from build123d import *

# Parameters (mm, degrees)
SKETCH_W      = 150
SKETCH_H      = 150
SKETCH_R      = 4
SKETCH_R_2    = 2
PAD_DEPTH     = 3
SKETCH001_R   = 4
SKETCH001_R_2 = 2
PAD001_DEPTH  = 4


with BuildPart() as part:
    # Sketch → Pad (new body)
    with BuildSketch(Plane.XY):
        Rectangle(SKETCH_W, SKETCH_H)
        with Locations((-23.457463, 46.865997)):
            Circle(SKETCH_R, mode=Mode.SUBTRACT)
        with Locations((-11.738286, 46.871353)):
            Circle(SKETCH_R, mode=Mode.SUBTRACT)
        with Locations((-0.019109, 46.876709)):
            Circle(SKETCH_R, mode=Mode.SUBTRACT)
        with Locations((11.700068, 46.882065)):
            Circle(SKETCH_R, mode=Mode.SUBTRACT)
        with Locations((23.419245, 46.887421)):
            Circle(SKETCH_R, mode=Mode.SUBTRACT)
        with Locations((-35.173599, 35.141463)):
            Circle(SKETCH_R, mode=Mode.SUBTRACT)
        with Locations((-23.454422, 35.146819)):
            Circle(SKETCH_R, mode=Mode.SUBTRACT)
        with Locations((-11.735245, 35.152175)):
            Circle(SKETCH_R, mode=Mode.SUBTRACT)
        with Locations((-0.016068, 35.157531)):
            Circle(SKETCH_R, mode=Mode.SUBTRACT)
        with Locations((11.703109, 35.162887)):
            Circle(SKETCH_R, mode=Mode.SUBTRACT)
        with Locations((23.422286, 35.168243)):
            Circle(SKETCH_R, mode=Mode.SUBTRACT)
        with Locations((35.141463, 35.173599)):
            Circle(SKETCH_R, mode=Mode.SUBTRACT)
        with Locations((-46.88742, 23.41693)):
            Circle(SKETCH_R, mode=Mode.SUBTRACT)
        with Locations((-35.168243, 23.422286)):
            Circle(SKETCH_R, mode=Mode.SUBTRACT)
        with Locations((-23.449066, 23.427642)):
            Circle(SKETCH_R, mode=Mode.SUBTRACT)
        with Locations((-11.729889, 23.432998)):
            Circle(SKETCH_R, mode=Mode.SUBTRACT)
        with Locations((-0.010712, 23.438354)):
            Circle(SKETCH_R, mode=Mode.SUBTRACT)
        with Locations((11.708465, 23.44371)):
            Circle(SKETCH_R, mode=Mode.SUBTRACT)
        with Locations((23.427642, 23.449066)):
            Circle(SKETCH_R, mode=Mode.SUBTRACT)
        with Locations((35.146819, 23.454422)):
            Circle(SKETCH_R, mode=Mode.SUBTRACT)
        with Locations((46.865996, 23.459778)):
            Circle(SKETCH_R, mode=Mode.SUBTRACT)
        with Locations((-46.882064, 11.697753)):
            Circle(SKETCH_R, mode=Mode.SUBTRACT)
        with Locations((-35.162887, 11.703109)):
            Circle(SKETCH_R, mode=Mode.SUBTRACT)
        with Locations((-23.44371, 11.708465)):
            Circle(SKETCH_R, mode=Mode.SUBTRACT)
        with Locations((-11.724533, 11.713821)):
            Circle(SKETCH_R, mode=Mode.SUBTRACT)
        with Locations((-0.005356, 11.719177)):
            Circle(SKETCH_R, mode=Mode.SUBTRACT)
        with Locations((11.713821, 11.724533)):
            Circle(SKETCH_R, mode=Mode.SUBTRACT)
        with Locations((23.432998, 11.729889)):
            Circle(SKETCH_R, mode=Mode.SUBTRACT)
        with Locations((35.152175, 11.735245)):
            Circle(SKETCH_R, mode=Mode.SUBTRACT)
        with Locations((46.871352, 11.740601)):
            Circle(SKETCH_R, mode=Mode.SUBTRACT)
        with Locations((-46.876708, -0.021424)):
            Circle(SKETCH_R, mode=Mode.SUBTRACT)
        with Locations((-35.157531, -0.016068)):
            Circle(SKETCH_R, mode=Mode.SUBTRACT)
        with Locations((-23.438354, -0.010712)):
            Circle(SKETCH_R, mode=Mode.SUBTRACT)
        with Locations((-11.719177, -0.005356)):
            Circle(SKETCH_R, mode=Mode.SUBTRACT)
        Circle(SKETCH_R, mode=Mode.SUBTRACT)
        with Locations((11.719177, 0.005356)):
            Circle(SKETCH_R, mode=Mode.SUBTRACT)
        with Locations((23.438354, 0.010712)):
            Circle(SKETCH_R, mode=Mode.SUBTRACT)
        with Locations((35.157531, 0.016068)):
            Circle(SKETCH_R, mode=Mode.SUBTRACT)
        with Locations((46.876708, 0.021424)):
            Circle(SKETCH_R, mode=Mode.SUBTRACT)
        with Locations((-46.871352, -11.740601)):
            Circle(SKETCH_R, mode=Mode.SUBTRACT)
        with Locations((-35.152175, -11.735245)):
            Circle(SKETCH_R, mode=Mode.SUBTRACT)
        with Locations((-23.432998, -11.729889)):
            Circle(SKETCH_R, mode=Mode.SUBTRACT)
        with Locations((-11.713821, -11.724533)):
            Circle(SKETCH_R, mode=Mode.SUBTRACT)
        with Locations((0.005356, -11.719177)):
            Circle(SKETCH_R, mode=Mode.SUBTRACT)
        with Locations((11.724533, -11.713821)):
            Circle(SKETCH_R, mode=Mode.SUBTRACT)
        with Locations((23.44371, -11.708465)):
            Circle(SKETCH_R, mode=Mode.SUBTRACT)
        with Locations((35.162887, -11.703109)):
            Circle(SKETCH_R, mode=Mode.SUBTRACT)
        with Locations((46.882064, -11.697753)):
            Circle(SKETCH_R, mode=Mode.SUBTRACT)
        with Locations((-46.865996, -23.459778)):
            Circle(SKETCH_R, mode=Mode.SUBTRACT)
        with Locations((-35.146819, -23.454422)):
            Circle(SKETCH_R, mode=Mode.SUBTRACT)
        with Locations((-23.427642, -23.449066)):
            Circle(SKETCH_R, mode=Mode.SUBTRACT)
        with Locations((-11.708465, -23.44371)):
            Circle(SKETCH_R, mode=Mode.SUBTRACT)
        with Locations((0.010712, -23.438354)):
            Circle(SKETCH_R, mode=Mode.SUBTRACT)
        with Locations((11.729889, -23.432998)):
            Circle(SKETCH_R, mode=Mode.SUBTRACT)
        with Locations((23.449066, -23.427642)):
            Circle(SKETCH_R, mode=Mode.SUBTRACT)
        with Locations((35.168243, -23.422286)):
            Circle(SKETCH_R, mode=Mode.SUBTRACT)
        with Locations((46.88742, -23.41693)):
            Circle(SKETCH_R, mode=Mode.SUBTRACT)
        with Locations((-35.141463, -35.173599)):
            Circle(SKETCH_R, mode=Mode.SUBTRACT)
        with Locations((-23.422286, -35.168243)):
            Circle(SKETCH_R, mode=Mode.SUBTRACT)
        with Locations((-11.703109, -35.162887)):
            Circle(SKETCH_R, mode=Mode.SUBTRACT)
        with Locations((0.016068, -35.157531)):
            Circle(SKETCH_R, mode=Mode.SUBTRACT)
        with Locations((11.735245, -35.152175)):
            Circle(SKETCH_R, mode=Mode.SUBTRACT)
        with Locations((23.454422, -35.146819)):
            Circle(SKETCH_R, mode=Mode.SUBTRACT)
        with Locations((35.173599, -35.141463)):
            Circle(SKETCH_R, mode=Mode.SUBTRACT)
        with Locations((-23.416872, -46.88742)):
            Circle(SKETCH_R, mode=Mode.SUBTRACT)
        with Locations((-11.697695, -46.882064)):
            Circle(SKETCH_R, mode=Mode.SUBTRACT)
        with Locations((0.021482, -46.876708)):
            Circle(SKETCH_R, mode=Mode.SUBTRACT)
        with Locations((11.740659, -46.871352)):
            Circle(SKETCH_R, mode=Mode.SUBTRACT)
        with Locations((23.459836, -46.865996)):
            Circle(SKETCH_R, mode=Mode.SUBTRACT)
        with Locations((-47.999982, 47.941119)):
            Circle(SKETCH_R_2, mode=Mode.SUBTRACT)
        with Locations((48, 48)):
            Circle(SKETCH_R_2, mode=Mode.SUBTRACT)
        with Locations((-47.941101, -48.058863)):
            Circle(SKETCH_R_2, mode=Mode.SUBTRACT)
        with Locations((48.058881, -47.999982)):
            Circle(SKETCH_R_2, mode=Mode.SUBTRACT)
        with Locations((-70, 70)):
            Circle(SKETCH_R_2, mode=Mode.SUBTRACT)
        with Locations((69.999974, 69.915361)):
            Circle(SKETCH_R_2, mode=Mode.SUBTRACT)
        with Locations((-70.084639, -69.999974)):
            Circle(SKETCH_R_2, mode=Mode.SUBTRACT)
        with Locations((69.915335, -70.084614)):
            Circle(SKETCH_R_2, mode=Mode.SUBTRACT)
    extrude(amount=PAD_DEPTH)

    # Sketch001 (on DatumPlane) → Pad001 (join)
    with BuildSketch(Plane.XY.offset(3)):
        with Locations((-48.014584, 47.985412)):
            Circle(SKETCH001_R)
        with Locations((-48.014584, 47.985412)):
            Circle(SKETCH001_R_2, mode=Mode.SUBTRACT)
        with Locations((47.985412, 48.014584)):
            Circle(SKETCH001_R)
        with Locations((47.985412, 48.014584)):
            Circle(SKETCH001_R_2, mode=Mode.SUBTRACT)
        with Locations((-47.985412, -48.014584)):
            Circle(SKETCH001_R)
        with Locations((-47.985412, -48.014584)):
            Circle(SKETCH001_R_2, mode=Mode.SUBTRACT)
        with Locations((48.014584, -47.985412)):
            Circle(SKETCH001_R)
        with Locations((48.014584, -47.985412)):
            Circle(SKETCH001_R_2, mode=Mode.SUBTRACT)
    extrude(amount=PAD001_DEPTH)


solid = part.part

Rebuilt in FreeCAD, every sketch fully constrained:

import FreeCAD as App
import Part
import Sketcher

V = App.Vector

doc = App.newDocument("Part")
params = doc.addObject("Spreadsheet::Sheet", "Params")
for row, (alias, value) in enumerate([
    ("sketch1_diameter", "4 mm"),
    ("sketch1_diameter2", "8 mm"),
    ("sketch1_width", "150 mm"),
    ("pad1_length", "3 mm"),
    ("sketch2_diameter", "8 mm"),
    ("sketch2_diameter2", "4 mm"),
    ("pad2_length", "4 mm"),
], start=1):
    params.set(f"A{row}", alias)
    params.set(f"B{row}", "=" + value)
    params.setAlias(f"B{row}", alias)

body = doc.addObject("PartDesign::Body", "Body")

# Sketch on XY plane
sketch1 = doc.addObject("Sketcher::SketchObject", "Sketch")
body.addObject(sketch1)
sketch1.AttachmentSupport = (doc.XY_Plane, [""])
sketch1.MapMode = "FlatFace"
sketch1.addGeometry([
    Part.LineSegment(V(-75, 75, 0), V(-75, -75, 0)),  # 0
    Part.LineSegment(V(-75, -75, 0), V(75, -75, 0)),  # 1
    Part.LineSegment(V(75, -75, 0), V(75, 75, 0)),  # 2
    Part.LineSegment(V(75, 75, 0), V(-75, 75, 0)),  # 3
    Part.Circle(V(-70.084639, -69.999974, 0), V(0, 0, 1), 2),  # 4
    Part.Circle(V(-47.941101, -48.058863, 0), V(0, 0, 1), 2),  # 5
    Part.Circle(V(-23.416872, -46.88742, 0), V(0, 0, 1), 4),  # 6
    Part.Circle(V(-11.697695, -46.882064, 0), V(0, 0, 1), 4),  # 7
    Part.Circle(V(-46.865996, -23.459778, 0), V(0, 0, 1), 4),  # 8
    Part.Circle(V(-46.871352, -11.740601, 0), V(0, 0, 1), 4),  # 9
    Part.Circle(V(-35.141463, -35.173599, 0), V(0, 0, 1), 4),  # 10
    Part.Circle(V(-23.422286, -35.168243, 0), V(0, 0, 1), 4),  # 11
    Part.Circle(V(-35.146819, -23.454422, 0), V(0, 0, 1), 4),  # 12
    Part.Circle(V(-23.427642, -23.449066, 0), V(0, 0, 1), 4),  # 13
    Part.Circle(V(-11.703109, -35.162887, 0), V(0, 0, 1), 4),  # 14
    Part.Circle(V(-11.708465, -23.44371, 0), V(0, 0, 1), 4),  # 15
    Part.Circle(V(-35.152175, -11.735245, 0), V(0, 0, 1), 4),  # 16
    Part.Circle(V(-23.432998, -11.729889, 0), V(0, 0, 1), 4),  # 17
    Part.Circle(V(-11.713821, -11.724533, 0), V(0, 0, 1), 4),  # 18
    Part.Circle(V(0.021482, -46.876708, 0), V(0, 0, 1), 4),  # 19
    Part.Circle(V(11.740659, -46.871352, 0), V(0, 0, 1), 4),  # 20
    Part.Circle(V(23.459836, -46.865996, 0), V(0, 0, 1), 4),  # 21
    Part.Circle(V(69.915335, -70.084614, 0), V(0, 0, 1), 2),  # 22
    Part.Circle(V(48.058881, -47.999982, 0), V(0, 0, 1), 2),  # 23
    Part.Circle(V(0.016068, -35.157531, 0), V(0, 0, 1), 4),  # 24
    Part.Circle(V(11.735245, -35.152175, 0), V(0, 0, 1), 4),  # 25
    Part.Circle(V(0.010712, -23.438354, 0), V(0, 0, 1), 4),  # 26
    Part.Circle(V(11.729889, -23.432998, 0), V(0, 0, 1), 4),  # 27
    Part.Circle(V(23.454422, -35.146819, 0), V(0, 0, 1), 4),  # 28
    Part.Circle(V(35.173599, -35.141463, 0), V(0, 0, 1), 4),  # 29
    Part.Circle(V(23.449066, -23.427642, 0), V(0, 0, 1), 4),  # 30
    Part.Circle(V(35.168243, -23.422286, 0), V(0, 0, 1), 4),  # 31
    Part.Circle(V(0.005356, -11.719177, 0), V(0, 0, 1), 4),  # 32
    Part.Circle(V(11.724533, -11.713821, 0), V(0, 0, 1), 4),  # 33
    Part.Circle(V(23.44371, -11.708465, 0), V(0, 0, 1), 4),  # 34
    Part.Circle(V(35.162887, -11.703109, 0), V(0, 0, 1), 4),  # 35
    Part.Circle(V(46.88742, -23.41693, 0), V(0, 0, 1), 4),  # 36
    Part.Circle(V(46.882064, -11.697753, 0), V(0, 0, 1), 4),  # 37
    Part.Circle(V(-46.876708, -0.021424, 0), V(0, 0, 1), 4),  # 38
    Part.Circle(V(-46.882064, 11.697753, 0), V(0, 0, 1), 4),  # 39
    Part.Circle(V(-46.88742, 23.41693, 0), V(0, 0, 1), 4),  # 40
    Part.Circle(V(-35.157531, -0.016068, 0), V(0, 0, 1), 4),  # 41
    Part.Circle(V(-23.438354, -0.010712, 0), V(0, 0, 1), 4),  # 42
    Part.Circle(V(-35.162887, 11.703109, 0), V(0, 0, 1), 4),  # 43
    Part.Circle(V(-23.44371, 11.708465, 0), V(0, 0, 1), 4),  # 44
    Part.Circle(V(-11.719177, -0.005356, 0), V(0, 0, 1), 4),  # 45
    Part.Circle(V(-11.724533, 11.713821, 0), V(0, 0, 1), 4),  # 46
    Part.Circle(V(-35.168243, 23.422286, 0), V(0, 0, 1), 4),  # 47
    Part.Circle(V(-23.449066, 23.427642, 0), V(0, 0, 1), 4),  # 48
    Part.Circle(V(-35.173599, 35.141463, 0), V(0, 0, 1), 4),  # 49
    Part.Circle(V(-23.454422, 35.146819, 0), V(0, 0, 1), 4),  # 50
    Part.Circle(V(-11.729889, 23.432998, 0), V(0, 0, 1), 4),  # 51
    Part.Circle(V(-11.735245, 35.152175, 0), V(0, 0, 1), 4),  # 52
    Part.Circle(V(-47.999982, 47.941119, 0), V(0, 0, 1), 2),  # 53
    Part.Circle(V(-70, 70, 0), V(0, 0, 1), 2),  # 54
    Part.Circle(V(-23.457463, 46.865997, 0), V(0, 0, 1), 4),  # 55
    Part.Circle(V(-11.738286, 46.871353, 0), V(0, 0, 1), 4),  # 56
    Part.Circle(V(0, 0, 0), V(0, 0, 1), 4),  # 57
    Part.Circle(V(11.719177, 0.005356, 0), V(0, 0, 1), 4),  # 58
    Part.Circle(V(-0.005356, 11.719177, 0), V(0, 0, 1), 4),  # 59
    Part.Circle(V(11.713821, 11.724533, 0), V(0, 0, 1), 4),  # 60
    Part.Circle(V(23.438354, 0.010712, 0), V(0, 0, 1), 4),  # 61
    Part.Circle(V(35.157531, 0.016068, 0), V(0, 0, 1), 4),  # 62
    Part.Circle(V(23.432998, 11.729889, 0), V(0, 0, 1), 4),  # 63
    Part.Circle(V(35.152175, 11.735245, 0), V(0, 0, 1), 4),  # 64
    Part.Circle(V(-0.010712, 23.438354, 0), V(0, 0, 1), 4),  # 65
    Part.Circle(V(11.708465, 23.44371, 0), V(0, 0, 1), 4),  # 66
    Part.Circle(V(-0.016068, 35.157531, 0), V(0, 0, 1), 4),  # 67
    Part.Circle(V(11.703109, 35.162887, 0), V(0, 0, 1), 4),  # 68
    Part.Circle(V(23.427642, 23.449066, 0), V(0, 0, 1), 4),  # 69
    Part.Circle(V(35.146819, 23.454422, 0), V(0, 0, 1), 4),  # 70
    Part.Circle(V(23.422286, 35.168243, 0), V(0, 0, 1), 4),  # 71
    Part.Circle(V(35.141463, 35.173599, 0), V(0, 0, 1), 4),  # 72
    Part.Circle(V(46.876708, 0.021424, 0), V(0, 0, 1), 4),  # 73
    Part.Circle(V(46.871352, 11.740601, 0), V(0, 0, 1), 4),  # 74
    Part.Circle(V(46.865996, 23.459778, 0), V(0, 0, 1), 4),  # 75
    Part.Circle(V(-0.019109, 46.876709, 0), V(0, 0, 1), 4),  # 76
    Part.Circle(V(11.700068, 46.882065, 0), V(0, 0, 1), 4),  # 77
    Part.Circle(V(23.419245, 46.887421, 0), V(0, 0, 1), 4),  # 78
    Part.Circle(V(48, 48, 0), V(0, 0, 1), 2),  # 79
    Part.Circle(V(69.999974, 69.915361, 0), V(0, 0, 1), 2),  # 80
], False)
sketch1.addConstraint([
    Sketcher.Constraint("Coincident", 0, 2, 1, 1),
    Sketcher.Constraint("Coincident", 1, 2, 2, 1),
    Sketcher.Constraint("Coincident", 2, 2, 3, 1),
    Sketcher.Constraint("Coincident", 3, 2, 0, 1),
    Sketcher.Constraint("Vertical", 0),
    Sketcher.Constraint("Horizontal", 1),
    Sketcher.Constraint("Vertical", 2),
    Sketcher.Constraint("Horizontal", 3),
    Sketcher.Constraint("Coincident", 57, 3, -1, 1),
    Sketcher.Constraint("Equal", 4, 5),
    Sketcher.Constraint("Equal", 6, 7),
    Sketcher.Constraint("Equal", 7, 8),
    Sketcher.Constraint("Equal", 8, 9),
    Sketcher.Constraint("Equal", 9, 10),
    Sketcher.Constraint("Equal", 10, 11),
    Sketcher.Constraint("Equal", 11, 12),
    Sketcher.Constraint("Equal", 12, 13),
    Sketcher.Constraint("Equal", 13, 14),
    Sketcher.Constraint("Equal", 14, 15),
    Sketcher.Constraint("Equal", 15, 16),
    Sketcher.Constraint("Equal", 16, 17),
    Sketcher.Constraint("Equal", 17, 18),
    Sketcher.Constraint("Equal", 18, 19),
    Sketcher.Constraint("Equal", 19, 20),
    Sketcher.Constraint("Equal", 20, 21),
    Sketcher.Constraint("Equal", 5, 22),
    Sketcher.Constraint("Equal", 22, 23),
    Sketcher.Constraint("Equal", 21, 24),
    Sketcher.Constraint("Equal", 24, 25),
    Sketcher.Constraint("Equal", 25, 26),
    Sketcher.Constraint("Equal", 26, 27),
    Sketcher.Constraint("Equal", 27, 28),
    Sketcher.Constraint("Equal", 28, 29),
    Sketcher.Constraint("Equal", 29, 30),
    Sketcher.Constraint("Equal", 30, 31),
    Sketcher.Constraint("Equal", 31, 32),
    Sketcher.Constraint("Equal", 32, 33),
    Sketcher.Constraint("Equal", 33, 34),
    Sketcher.Constraint("Equal", 34, 35),
    Sketcher.Constraint("Equal", 35, 36),
    Sketcher.Constraint("Equal", 36, 37),
    Sketcher.Constraint("Equal", 37, 38),
    Sketcher.Constraint("Equal", 38, 39),
    Sketcher.Constraint("Equal", 39, 40),
    Sketcher.Constraint("Equal", 40, 41),
    Sketcher.Constraint("Equal", 41, 42),
    Sketcher.Constraint("Equal", 42, 43),
    Sketcher.Constraint("Equal", 43, 44),
    Sketcher.Constraint("Equal", 44, 45),
    Sketcher.Constraint("Equal", 45, 46),
    Sketcher.Constraint("Equal", 46, 47),
    Sketcher.Constraint("Equal", 47, 48),
    Sketcher.Constraint("Equal", 48, 49),
    Sketcher.Constraint("Equal", 49, 50),
    Sketcher.Constraint("Equal", 50, 51),
    Sketcher.Constraint("Equal", 51, 52),
    Sketcher.Constraint("Equal", 23, 53),
    Sketcher.Constraint("Equal", 53, 54),
    Sketcher.Constraint("Equal", 52, 55),
    Sketcher.Constraint("Equal", 55, 56),
    Sketcher.Constraint("Equal", 56, 57),
    Sketcher.Constraint("Equal", 57, 58),
    Sketcher.Constraint("Equal", 58, 59),
    Sketcher.Constraint("Equal", 59, 60),
    Sketcher.Constraint("Equal", 60, 61),
    Sketcher.Constraint("Equal", 61, 62),
    Sketcher.Constraint("Equal", 62, 63),
    Sketcher.Constraint("Equal", 63, 64),
    Sketcher.Constraint("Equal", 64, 65),
    Sketcher.Constraint("Equal", 65, 66),
    Sketcher.Constraint("Equal", 66, 67),
    Sketcher.Constraint("Equal", 67, 68),
    Sketcher.Constraint("Equal", 68, 69),
    Sketcher.Constraint("Equal", 69, 70),
    Sketcher.Constraint("Equal", 70, 71),
    Sketcher.Constraint("Equal", 71, 72),
    Sketcher.Constraint("Equal", 72, 73),
    Sketcher.Constraint("Equal", 73, 74),
    Sketcher.Constraint("Equal", 74, 75),
    Sketcher.Constraint("Equal", 75, 76),
    Sketcher.Constraint("Equal", 76, 77),
    Sketcher.Constraint("Equal", 77, 78),
    Sketcher.Constraint("Equal", 54, 79),
    Sketcher.Constraint("Equal", 79, 80),
    Sketcher.Constraint("Symmetric", 37, 3, 39, 3, -1, 1),
    Sketcher.Constraint("Symmetric", 36, 3, 40, 3, -1, 1),
    Sketcher.Constraint("Symmetric", 35, 3, 43, 3, -1, 1),
    Sketcher.Constraint("Symmetric", 34, 3, 44, 3, -1, 1),
    Sketcher.Constraint("Symmetric", 33, 3, 46, 3, -1, 1),
    Sketcher.Constraint("Symmetric", 31, 3, 47, 3, -1, 1),
    Sketcher.Constraint("Symmetric", 30, 3, 48, 3, -1, 1),
    Sketcher.Constraint("Symmetric", 29, 3, 49, 3, -1, 1),
    Sketcher.Constraint("Symmetric", 28, 3, 50, 3, -1, 1),
    Sketcher.Constraint("Symmetric", 27, 3, 51, 3, -1, 1),
    Sketcher.Constraint("Symmetric", 25, 3, 52, 3, -1, 1),
    Sketcher.Constraint("Symmetric", 45, 3, 58, 3, -1, 1),
    Sketcher.Constraint("Symmetric", 32, 3, 59, 3, -1, 1),
    Sketcher.Constraint("Symmetric", 18, 3, 60, 3, -1, 1),
    Sketcher.Constraint("Symmetric", 42, 3, 61, 3, -1, 1),
    Sketcher.Constraint("Symmetric", 41, 3, 62, 3, -1, 1),
    Sketcher.Constraint("Symmetric", 17, 3, 63, 3, -1, 1),
    Sketcher.Constraint("Symmetric", 16, 3, 64, 3, -1, 1),
    Sketcher.Constraint("Symmetric", 26, 3, 65, 3, -1, 1),
    Sketcher.Constraint("Symmetric", 15, 3, 66, 3, -1, 1),
    Sketcher.Constraint("Symmetric", 24, 3, 67, 3, -1, 1),
    Sketcher.Constraint("Symmetric", 14, 3, 68, 3, -1, 1),
    Sketcher.Constraint("Symmetric", 13, 3, 69, 3, -1, 1),
    Sketcher.Constraint("Symmetric", 12, 3, 70, 3, -1, 1),
    Sketcher.Constraint("Symmetric", 11, 3, 71, 3, -1, 1),
    Sketcher.Constraint("Symmetric", 10, 3, 72, 3, -1, 1),
    Sketcher.Constraint("Symmetric", 38, 3, 73, 3, -1, 1),
    Sketcher.Constraint("Symmetric", 9, 3, 74, 3, -1, 1),
    Sketcher.Constraint("Symmetric", 8, 3, 75, 3, -1, 1),
    Sketcher.Constraint("Symmetric", 0, 2, 2, 2, -1, 1),
    Sketcher.Constraint("Equal", 3, 0),
    Sketcher.Constraint("Diameter", 4, 4.0),
    Sketcher.Constraint("Diameter", 6, 8.0),
    Sketcher.Constraint("DistanceX", 1, 1, 1, 2, 150.0),
    Sketcher.Constraint("DistanceX", 54, 3, -1, 1, 70.0),
    Sketcher.Constraint("DistanceY", -1, 1, 54, 3, 70.0),
    Sketcher.Constraint("DistanceX", -1, 1, 79, 3, 48.0),
    Sketcher.Constraint("DistanceY", -1, 1, 79, 3, 48.0),
    Sketcher.Constraint("DistanceX", 17, 3, -1, 1, 23.432998),
    Sketcher.Constraint("DistanceY", 27, 3, -1, 1, 23.432998),
    Sketcher.Constraint("DistanceX", 5, 3, -1, 1, 47.941101),
    Sketcher.Constraint("DistanceY", 9, 3, -1, 1, 11.740601),
    Sketcher.Constraint("DistanceY", 10, 3, -1, 1, 35.173599),
    Sketcher.Constraint("DistanceX", -1, 1, 29, 3, 35.173599),
    Sketcher.Constraint("DistanceX", 4, 3, -1, 1, 70.084639),
    Sketcher.Constraint("DistanceY", 6, 3, -1, 1, 46.88742),
    Sketcher.Constraint("DistanceY", 8, 3, -1, 1, 23.459778),
    Sketcher.Constraint("DistanceX", 12, 3, -1, 1, 35.146819),
    Sketcher.Constraint("DistanceX", 13, 3, -1, 1, 23.427642),
    Sketcher.Constraint("DistanceX", 14, 3, -1, 1, 11.703109),
    Sketcher.Constraint("DistanceY", 15, 3, -1, 1, 23.44371),
    Sketcher.Constraint("DistanceY", 17, 3, -1, 1, 11.729889),
    Sketcher.Constraint("DistanceX", 18, 3, -1, 1, 11.713821),
    Sketcher.Constraint("DistanceX", -1, 1, 20, 3, 11.740659),
    Sketcher.Constraint("DistanceX", -1, 1, 23, 3, 48.058881),
    Sketcher.Constraint("DistanceY", 24, 3, -1, 1, 35.157531),
    Sketcher.Constraint("DistanceX", -1, 1, 26, 3, 0.010712),
    Sketcher.Constraint("DistanceX", -1, 1, 27, 3, 11.729889),
    Sketcher.Constraint("DistanceY", 28, 3, -1, 1, 35.146819),
    Sketcher.Constraint("DistanceY", 30, 3, -1, 1, 23.427642),
    Sketcher.Constraint("DistanceY", 33, 3, -1, 1, 11.713821),
    Sketcher.Constraint("DistanceX", -1, 1, 34, 3, 23.44371),
    Sketcher.Constraint("DistanceY", 35, 3, -1, 1, 11.703109),
    Sketcher.Constraint("DistanceX", -1, 1, 36, 3, 46.88742),
    Sketcher.Constraint("DistanceY", 36, 3, -1, 1, 23.41693),
    Sketcher.Constraint("DistanceX", 41, 3, -1, 1, 35.157531),
    Sketcher.Constraint("DistanceY", 42, 3, -1, 1, 0.010712),
    Sketcher.Constraint("DistanceY", -1, 1, 53, 3, 47.941119),
    Sketcher.Constraint("DistanceX", 76, 3, -1, 1, 0.019109),
    Sketcher.Constraint("DistanceY", -1, 1, 76, 3, 46.876709),
    Sketcher.Constraint("DistanceY", -1, 1, 78, 3, 46.887421),
    Sketcher.Constraint("DistanceY", -1, 1, 80, 3, 69.915361),
    Sketcher.Constraint("DistanceY", 4, 3, -1, 1, 69.999974),
    Sketcher.Constraint("DistanceY", 5, 3, -1, 1, 48.058863),
    Sketcher.Constraint("DistanceX", 6, 3, -1, 1, 23.416872),
    Sketcher.Constraint("DistanceX", 7, 3, -1, 1, 11.697695),
    Sketcher.Constraint("DistanceY", 7, 3, -1, 1, 46.882064),
    Sketcher.Constraint("DistanceX", 8, 3, -1, 1, 46.865996),
    Sketcher.Constraint("DistanceX", 9, 3, -1, 1, 46.871352),
    Sketcher.Constraint("DistanceX", 10, 3, -1, 1, 35.141463),
    Sketcher.Constraint("DistanceX", 11, 3, -1, 1, 23.422286),
    Sketcher.Constraint("DistanceY", 11, 3, -1, 1, 35.168243),
    Sketcher.Constraint("DistanceY", 12, 3, -1, 1, 23.454422),
    Sketcher.Constraint("DistanceY", 13, 3, -1, 1, 23.449066),
    Sketcher.Constraint("DistanceY", 14, 3, -1, 1, 35.162887),
    Sketcher.Constraint("DistanceX", 15, 3, -1, 1, 11.708465),
    Sketcher.Constraint("DistanceX", 16, 3, -1, 1, 35.152175),
    Sketcher.Constraint("DistanceY", 16, 3, -1, 1, 11.735245),
    Sketcher.Constraint("DistanceY", 18, 3, -1, 1, 11.724533),
    Sketcher.Constraint("DistanceX", -1, 1, 19, 3, 0.021482),
    Sketcher.Constraint("DistanceY", 19, 3, -1, 1, 46.876708),
    Sketcher.Constraint("DistanceY", 20, 3, -1, 1, 46.871352),
    Sketcher.Constraint("DistanceX", -1, 1, 21, 3, 23.459836),
    Sketcher.Constraint("DistanceY", 21, 3, -1, 1, 46.865996),
    Sketcher.Constraint("DistanceX", -1, 1, 22, 3, 69.915335),
    Sketcher.Constraint("DistanceY", 22, 3, -1, 1, 70.084614),
    Sketcher.Constraint("DistanceY", 23, 3, -1, 1, 47.999982),
    Sketcher.Constraint("DistanceX", -1, 1, 24, 3, 0.016068),
    Sketcher.Constraint("DistanceX", -1, 1, 25, 3, 11.735245),
    Sketcher.Constraint("DistanceY", 25, 3, -1, 1, 35.152175),
    Sketcher.Constraint("DistanceY", 26, 3, -1, 1, 23.438354),
    Sketcher.Constraint("DistanceX", -1, 1, 28, 3, 23.454422),
    Sketcher.Constraint("DistanceY", 29, 3, -1, 1, 35.141463),
    Sketcher.Constraint("DistanceX", -1, 1, 30, 3, 23.449066),
    Sketcher.Constraint("DistanceX", -1, 1, 31, 3, 35.168243),
    Sketcher.Constraint("DistanceY", 31, 3, -1, 1, 23.422286),
    Sketcher.Constraint("DistanceX", -1, 1, 32, 3, 0.005356),
    Sketcher.Constraint("DistanceY", 32, 3, -1, 1, 11.719177),
    Sketcher.Constraint("DistanceX", -1, 1, 33, 3, 11.724533),
    Sketcher.Constraint("DistanceY", 34, 3, -1, 1, 11.708465),
    Sketcher.Constraint("DistanceX", -1, 1, 35, 3, 35.162887),
    Sketcher.Constraint("DistanceX", -1, 1, 37, 3, 46.882064),
    Sketcher.Constraint("DistanceY", 37, 3, -1, 1, 11.697753),
    Sketcher.Constraint("DistanceX", 38, 3, -1, 1, 46.876708),
    Sketcher.Constraint("DistanceY", 38, 3, -1, 1, 0.021424),
    Sketcher.Constraint("DistanceY", 41, 3, -1, 1, 0.016068),
    Sketcher.Constraint("DistanceX", 42, 3, -1, 1, 23.438354),
    Sketcher.Constraint("DistanceX", 45, 3, -1, 1, 11.719177),
    Sketcher.Constraint("DistanceY", 45, 3, -1, 1, 0.005356),
    Sketcher.Constraint("DistanceX", 53, 3, -1, 1, 47.999982),
    Sketcher.Constraint("DistanceX", 55, 3, -1, 1, 23.457463),
    Sketcher.Constraint("DistanceY", -1, 1, 55, 3, 46.865997),
    Sketcher.Constraint("DistanceX", 56, 3, -1, 1, 11.738286),
    Sketcher.Constraint("DistanceY", -1, 1, 56, 3, 46.871353),
    Sketcher.Constraint("DistanceX", -1, 1, 77, 3, 11.700068),
    Sketcher.Constraint("DistanceY", -1, 1, 77, 3, 46.882065),
    Sketcher.Constraint("DistanceX", -1, 1, 78, 3, 23.419245),
    Sketcher.Constraint("DistanceX", -1, 1, 80, 3, 69.999974),
])
sketch1.setExpression("Constraints[115]", "Params.sketch1_diameter")
sketch1.setExpression("Constraints[116]", "Params.sketch1_diameter2")
sketch1.setExpression("Constraints[117]", "Params.sketch1_width")
pad1 = doc.addObject("PartDesign::Pad", "Pad")
body.addObject(pad1)
pad1.Profile = sketch1
pad1.setExpression("Length", "Params.pad1_length")

# Sketch on XY plane
sketch2 = doc.addObject("Sketcher::SketchObject", "Sketch001")
body.addObject(sketch2)
sketch2.AttachmentSupport = (doc.XY_Plane, [""])
sketch2.MapMode = "FlatFace"
sketch2.AttachmentOffset = App.Placement(V(0, 0, 3), App.Rotation())
sketch2.addGeometry([
    Part.Circle(V(-48.014584, 47.985412, 0), V(0, 0, 1), 4),  # 0
    Part.Circle(V(-48.014584, 47.985412, 0), V(0, 0, 1), 2),  # 1
    Part.Circle(V(47.985412, 48.014584, 0), V(0, 0, 1), 4),  # 2
    Part.Circle(V(47.985412, 48.014584, 0), V(0, 0, 1), 2),  # 3
    Part.Circle(V(-47.985412, -48.014584, 0), V(0, 0, 1), 4),  # 4
    Part.Circle(V(-47.985412, -48.014584, 0), V(0, 0, 1), 2),  # 5
    Part.Circle(V(48.014584, -47.985412, 0), V(0, 0, 1), 4),  # 6
    Part.Circle(V(48.014584, -47.985412, 0), V(0, 0, 1), 2),  # 7
], False)
sketch2.addConstraint([
    Sketcher.Constraint("Coincident", 1, 3, 0, 3),
    Sketcher.Constraint("Coincident", 3, 3, 2, 3),
    Sketcher.Constraint("Coincident", 5, 3, 4, 3),
    Sketcher.Constraint("Coincident", 7, 3, 6, 3),
    Sketcher.Constraint("Equal", 0, 2),
    Sketcher.Constraint("Equal", 1, 3),
    Sketcher.Constraint("Equal", 2, 4),
    Sketcher.Constraint("Equal", 3, 5),
    Sketcher.Constraint("Equal", 4, 6),
    Sketcher.Constraint("Equal", 5, 7),
    Sketcher.Constraint("Symmetric", 2, 3, 4, 3, -1, 1),
    Sketcher.Constraint("Symmetric", 0, 3, 6, 3, -1, 1),
    Sketcher.Constraint("Diameter", 0, 8.0),
    Sketcher.Constraint("Diameter", 1, 4.0),
    Sketcher.Constraint("DistanceY", -1, 1, 0, 3, 47.985412),
    Sketcher.Constraint("DistanceX", -1, 1, 2, 3, 47.985412),
    Sketcher.Constraint("DistanceY", 4, 3, 2, 3, 96.029168),
    Sketcher.Constraint("DistanceX", 0, 3, 6, 3, 96.029168),
])
sketch2.setExpression("Constraints[12]", "Params.sketch2_diameter")
sketch2.setExpression("Constraints[13]", "Params.sketch2_diameter2")
pad2 = doc.addObject("PartDesign::Pad", "Pad001")
body.addObject(pad2)
pad2.Profile = sketch2
pad2.setExpression("Length", "Params.pad2_length")

doc.recompute()
